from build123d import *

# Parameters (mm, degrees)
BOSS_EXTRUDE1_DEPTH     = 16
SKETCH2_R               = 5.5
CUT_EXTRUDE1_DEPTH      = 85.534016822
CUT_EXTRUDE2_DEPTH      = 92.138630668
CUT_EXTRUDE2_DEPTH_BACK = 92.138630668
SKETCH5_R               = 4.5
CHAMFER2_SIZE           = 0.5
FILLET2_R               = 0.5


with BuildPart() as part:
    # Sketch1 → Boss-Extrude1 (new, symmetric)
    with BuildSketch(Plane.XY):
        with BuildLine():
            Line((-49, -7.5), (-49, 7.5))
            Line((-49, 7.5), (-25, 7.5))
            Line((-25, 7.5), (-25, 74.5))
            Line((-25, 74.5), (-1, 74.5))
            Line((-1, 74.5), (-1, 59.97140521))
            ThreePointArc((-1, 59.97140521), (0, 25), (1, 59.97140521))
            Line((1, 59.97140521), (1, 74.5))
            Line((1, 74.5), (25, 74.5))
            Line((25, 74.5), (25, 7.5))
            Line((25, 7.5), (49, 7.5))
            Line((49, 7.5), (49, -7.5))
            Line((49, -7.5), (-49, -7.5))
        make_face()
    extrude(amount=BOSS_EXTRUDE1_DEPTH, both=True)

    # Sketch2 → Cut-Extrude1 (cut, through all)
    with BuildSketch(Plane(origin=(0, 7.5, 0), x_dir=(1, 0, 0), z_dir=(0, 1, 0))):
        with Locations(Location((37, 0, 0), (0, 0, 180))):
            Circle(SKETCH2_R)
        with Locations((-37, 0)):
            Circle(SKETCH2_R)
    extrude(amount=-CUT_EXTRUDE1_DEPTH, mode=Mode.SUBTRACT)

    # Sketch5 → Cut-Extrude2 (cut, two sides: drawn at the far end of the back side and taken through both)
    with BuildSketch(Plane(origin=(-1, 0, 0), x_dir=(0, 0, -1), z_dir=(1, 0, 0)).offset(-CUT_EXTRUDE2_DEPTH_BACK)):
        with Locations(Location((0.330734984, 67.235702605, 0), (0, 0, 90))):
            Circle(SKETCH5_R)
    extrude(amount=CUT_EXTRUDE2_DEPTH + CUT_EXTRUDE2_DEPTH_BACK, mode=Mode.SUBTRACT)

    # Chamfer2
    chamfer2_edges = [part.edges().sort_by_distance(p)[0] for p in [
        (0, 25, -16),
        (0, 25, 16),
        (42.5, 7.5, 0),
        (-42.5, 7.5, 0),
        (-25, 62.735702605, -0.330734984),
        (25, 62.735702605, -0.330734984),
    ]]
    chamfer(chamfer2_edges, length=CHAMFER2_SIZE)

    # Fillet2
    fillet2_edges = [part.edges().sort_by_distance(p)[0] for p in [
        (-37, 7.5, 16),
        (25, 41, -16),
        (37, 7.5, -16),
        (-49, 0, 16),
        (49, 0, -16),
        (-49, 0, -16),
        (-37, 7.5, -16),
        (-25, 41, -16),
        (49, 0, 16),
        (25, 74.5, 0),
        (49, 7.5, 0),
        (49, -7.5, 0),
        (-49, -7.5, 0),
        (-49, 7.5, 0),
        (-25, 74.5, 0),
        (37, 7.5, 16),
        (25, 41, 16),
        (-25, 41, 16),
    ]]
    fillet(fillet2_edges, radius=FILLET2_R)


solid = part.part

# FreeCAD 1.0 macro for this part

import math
import FreeCAD as App
import Part
import Sketcher
Q = App.Units.Quantity


def edges_at(feature, points):
    """Names of the edges that pass closest to the given points."""
    edges = feature.Shape.Edges
    near = lambda p: min(range(len(edges)), key=lambda i: edges[i].distToShape(Part.Vertex(*p))[0])
    return sorted({f"Edge{near(p) + 1}" for p in points})

doc = App.newDocument("Part")
params = doc.addObject("Spreadsheet::Sheet", "Params")
for row, (alias, value) in enumerate([
    ("sketch1_radius", "17.5 mm"),
    ("sketch1_width", "98 mm"),
    ("sketch1_width2", "24 mm"),
    ("sketch1_height", "15 mm"),
    ("sketch1_height2", "67 mm"),
    ("pad1_length", "32 mm"),
    ("sketch2_diameter", "11 mm"),
    ("sketch3_diameter", "9 mm"),
    ("chamfer_size", "0.5 mm"),
    ("fillet_radius", "0.5 mm"),
], start=1):
    params.set(f"A{row}", alias)
    params.set(f"B{row}", "=" + value)
    params.setAlias(f"B{row}", alias)

body = doc.addObject("PartDesign::Body", "Body")

# Sketch on XY plane
sketch1 = body.newObject("Sketcher::SketchObject", "Sketch")
sketch1.AttachmentSupport = (doc.getObject("XY_Plane"), [""])
sketch1.MapMode = "FlatFace"
sketch1.addGeometry(Part.LineSegment(App.Vector(-49, 7.5, 0), App.Vector(-49, -7.5, 0)), False)
sketch1.addGeometry(Part.LineSegment(App.Vector(-49, -7.5, 0), App.Vector(49, -7.5, 0)), False)
sketch1.addGeometry(Part.LineSegment(App.Vector(49, -7.5, 0), App.Vector(49, 7.5, 0)), False)
sketch1.addGeometry(Part.LineSegment(App.Vector(49, 7.5, 0), App.Vector(25, 7.5, 0)), False)
sketch1.addGeometry(Part.LineSegment(App.Vector(25, 7.5, 0), App.Vector(25, 74.5, 0)), False)
sketch1.addGeometry(Part.LineSegment(App.Vector(25, 74.5, 0), App.Vector(1, 74.5, 0)), False)
sketch1.addGeometry(Part.LineSegment(App.Vector(1, 74.5, 0), App.Vector(1, 60, 0)), False)
sketch1.addGeometry(Part.ArcOfCircle(Part.Circle(App.Vector(0, 42.5, 0), App.Vector(0, 0, 1), 17.5), math.radians(93), math.radians(447)), False)
sketch1.addGeometry(Part.LineSegment(App.Vector(-1, 60, 0), App.Vector(-1, 74.5, 0)), False)
sketch1.addGeometry(Part.LineSegment(App.Vector(-1, 74.5, 0), App.Vector(-25, 74.5, 0)), False)
sketch1.addGeometry(Part.LineSegment(App.Vector(-25, 74.5, 0), App.Vector(-25, 7.5, 0)), False)
sketch1.addGeometry(Part.LineSegment(App.Vector(-25, 7.5, 0), App.Vector(-49, 7.5, 0)), False)
sketch1.addConstraint(Sketcher.Constraint("Coincident", 0, 2, 1, 1))
sketch1.addConstraint(Sketcher.Constraint("Coincident", 1, 2, 2, 1))
sketch1.addConstraint(Sketcher.Constraint("Coincident", 2, 2, 3, 1))
sketch1.addConstraint(Sketcher.Constraint("Coincident", 3, 2, 4, 1))
sketch1.addConstraint(Sketcher.Constraint("Coincident", 4, 2, 5, 1))
sketch1.addConstraint(Sketcher.Constraint("Coincident", 5, 2, 6, 1))
sketch1.addConstraint(Sketcher.Constraint("Coincident", 6, 2, 7, 2))
sketch1.addConstraint(Sketcher.Constraint("Coincident", 7, 1, 8, 1))
sketch1.addConstraint(Sketcher.Constraint("Coincident", 8, 2, 9, 1))
sketch1.addConstraint(Sketcher.Constraint("Coincident", 9, 2, 10, 1))
sketch1.addConstraint(Sketcher.Constraint("Coincident", 10, 2, 11, 1))
sketch1.addConstraint(Sketcher.Constraint("Coincident", 11, 2, 0, 1))
sketch1.addConstraint(Sketcher.Constraint("Vertical", 0))
sketch1.addConstraint(Sketcher.Constraint("Horizontal", 1))
sketch1.addConstraint(Sketcher.Constraint("Vertical", 2))
sketch1.addConstraint(Sketcher.Constraint("Horizontal", 3))
sketch1.addConstraint(Sketcher.Constraint("Vertical", 4))
sketch1.addConstraint(Sketcher.Constraint("Horizontal", 5))
sketch1.addConstraint(Sketcher.Constraint("Vertical", 6))
sketch1.addConstraint(Sketcher.Constraint("Vertical", 8))
sketch1.addConstraint(Sketcher.Constraint("Horizontal", 9))
sketch1.addConstraint(Sketcher.Constraint("Vertical", 10))
sketch1.addConstraint(Sketcher.Constraint("Horizontal", 11))
sketch1.addConstraint(Sketcher.Constraint("Symmetric", 0, 2, 2, 2, -1, 1))
sketch1.addConstraint(Sketcher.Constraint("Symmetric", 6, 2, 7, 1, -2))
sketch1.addConstraint(Sketcher.Constraint("Symmetric", 4, 2, 9, 2, -2))
sketch1.addConstraint(Sketcher.Constraint("Horizontal", 3, 2, 10, 2))
sketch1.addConstraint(Sketcher.Constraint("Equal", 3, 5))
sketch1.addConstraint(Sketcher.Constraint("Radius", 7, Q("17.5 mm")))
sketch1.addConstraint(Sketcher.Constraint("DistanceX", 1, 1, 1, 2, Q("98 mm")))
sketch1.addConstraint(Sketcher.Constraint("DistanceX", 3, 2, 3, 1, Q("24 mm")))
sketch1.addConstraint(Sketcher.Constraint("DistanceY", 0, 2, 0, 1, Q("15 mm")))
sketch1.addConstraint(Sketcher.Constraint("DistanceY", 4, 1, 4, 2, Q("67 mm")))
sketch1.addConstraint(Sketcher.Constraint("DistanceY", 0, 2, 7, 3, Q("50 mm")))
sketch1.setExpression("Constraints[28]", "Params.sketch1_radius")
sketch1.setExpression("Constraints[29]", "Params.sketch1_width")
sketch1.setExpression("Constraints[30]", "Params.sketch1_width2")
sketch1.setExpression("Constraints[31]", "Params.sketch1_height")
sketch1.setExpression("Constraints[32]", "Params.sketch1_height2")
pad1 = body.newObject("PartDesign::Pad", "Pad")
pad1.Profile = sketch1
pad1.setExpression("Length", "Params.pad1_length")
pad1.Midplane = True

# Sketch on XZ plane
sketch2 = body.newObject("Sketcher::SketchObject", "Sketch001")
sketch2.AttachmentSupport = (doc.getObject("XZ_Plane"), [""])
sketch2.MapMode = "FlatFace"
sketch2.AttachmentOffset = App.Placement(App.Vector(0, 0, -7.5), App.Rotation())
sketch2.addGeometry(Part.Circle(App.Vector(37, 0, 0), App.Vector(0, 0, 1), 6), False)
sketch2.addGeometry(Part.Circle(App.Vector(-37, 0, 0), App.Vector(0, 0, 1), 6), False)
sketch2.addConstraint(Sketcher.Constraint("Equal", 0, 1))
sketch2.addConstraint(Sketcher.Constraint("Symmetric", 0, 3, 1, 3, -1, 1))
sketch2.addConstraint(Sketcher.Constraint("PointOnObject", 0, 3, -1))
sketch2.addConstraint(Sketcher.Constraint("Diameter", 0, Q("11 mm")))
sketch2.addConstraint(Sketcher.Constraint("DistanceX", -1, 1, 0, 3, Q("37 mm")))
sketch2.setExpression("Constraints[3]", "Params.sketch2_diameter")
pocket1 = body.newObject("PartDesign::Pocket", "Pocket")
pocket1.Profile = sketch2
pocket1.Type = "ThroughAll"
pocket1.Reversed = True

# Sketch on YZ plane
sketch3 = body.newObject("Sketcher::SketchObject", "Sketch002")
sketch3.AttachmentSupport = (doc.getObject("YZ_Plane"), [""])
sketch3.MapMode = "FlatFace"
sketch3.AttachmentOffset = App.Placement(App.Vector(0, 0, -1), App.Rotation())
sketch3.addGeometry(Part.Circle(App.Vector(67.2, -0.3, 0), App.Vector(0, 0, 1), 4.5), False)
sketch3.addConstraint(Sketcher.Constraint("Diameter", 0, Q("9 mm")))
sketch3.addConstraint(Sketcher.Constraint("DistanceX", -1, 1, 0, 3, Q("67.235703 mm")))
sketch3.addConstraint(Sketcher.Constraint("DistanceY", 0, 3, -1, 1, Q("0.330735 mm")))
sketch3.setExpression("Constraints[0]", "Params.sketch3_diameter")
pocket2 = body.newObject("PartDesign::Pocket", "Pocket001")
pocket2.Profile = sketch3
pocket2.Type = "ThroughAll"
pocket2.Midplane = True
doc.recompute()

chamfer = body.newObject("PartDesign::Chamfer", "Chamfer")
chamfer.Base = (pocket2, edges_at(pocket2, [
    (0, 25, -16),
    (0, 25, 16),
    (42.5, 7.5, 0),
    (-42.5, 7.5, 0),
    (-25, 62.736, -0.331),
    (25, 62.736, -0.331),
]))
chamfer.setExpression("Size", "Params.chamfer_size")
doc.recompute()

fillet = body.newObject("PartDesign::Fillet", "Fillet")
fillet.Base = (chamfer, edges_at(chamfer, [
    (-37, 7.5, 16),
    (25, 41, -16),
    (37, 7.5, -16),
    (-49, 0, 16),
    (49, 0, -16),
    (-49, 0, -16),
    (-37, 7.5, -16),
    (-25, 41, -16),
    (49, 0, 16),
    (25, 74.5, 0),
    (49, 7.5, 0),
    (49, -7.5, 0),
    (-49, -7.5, 0),
    (-49, 7.5, 0),
    (-25, 74.5, 0),
    (37, 7.5, 16),
    (25, 41, 16),
    (-25, 41, 16),
]))
fillet.setExpression("Radius", "Params.fillet_radius")

doc.recompute()
